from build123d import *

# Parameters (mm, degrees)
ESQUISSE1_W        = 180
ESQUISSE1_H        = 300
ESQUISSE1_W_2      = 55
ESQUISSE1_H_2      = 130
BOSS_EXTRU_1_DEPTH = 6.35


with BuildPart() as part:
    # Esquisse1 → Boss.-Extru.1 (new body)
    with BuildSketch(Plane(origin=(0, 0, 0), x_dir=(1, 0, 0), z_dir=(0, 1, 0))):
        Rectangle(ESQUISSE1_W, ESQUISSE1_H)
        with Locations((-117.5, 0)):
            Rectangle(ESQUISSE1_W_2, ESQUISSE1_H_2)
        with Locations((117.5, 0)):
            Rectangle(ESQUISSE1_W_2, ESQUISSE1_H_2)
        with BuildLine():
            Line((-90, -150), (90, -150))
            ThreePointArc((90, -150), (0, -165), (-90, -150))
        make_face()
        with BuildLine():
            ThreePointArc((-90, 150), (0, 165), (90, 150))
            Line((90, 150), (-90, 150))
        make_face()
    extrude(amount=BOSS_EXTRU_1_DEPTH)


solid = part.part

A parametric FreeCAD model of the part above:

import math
import FreeCAD as App
import Part
import Sketcher
from FreeCAD import Vector

doc = App.newDocument("Part")
params = doc.addObject("Spreadsheet::Sheet", "Params")
for row, (alias, value) in enumerate([
    ("sketch1_radius", "277.5 mm"),
    ("sketch1_width", "55 mm"),
    ("sketch1_height", "85 mm"),
    ("sketch1_height2", "130 mm"),
    ("pad1_length", "6.35 mm"),
], start=1):
    params.set(f"A{row}", alias)
    params.set(f"B{row}", "=" + value)
    params.setAlias(f"B{row}", alias)

body = doc.addObject("PartDesign::Body", "Body")

# Sketch on XZ plane
sketch1 = doc.addObject("Sketcher::SketchObject", "Sketch")
body.addObject(sketch1)
sketch1.AttachmentSupport = (doc.XZ_Plane, [""])
sketch1.MapMode = "FlatFace"
sketch1.addGeometry([
    Part.LineSegment(Vector(-90, 65, 0), Vector(-90, 150, 0)),  # 0
    Part.ArcOfCircle(Part.Circle(Vector(0, -112, 0), Vector(0, 0, 1), 278), math.radians(71), math.radians(109)),  # 1
    Part.LineSegment(Vector(90, 150, 0), Vector(90, 65, 0)),  # 2
    Part.LineSegment(Vector(90, 65, 0), Vector(145, 65, 0)),  # 3
    Part.LineSegment(Vector(145, 65, 0), Vector(145, -65, 0)),  # 4
    Part.LineSegment(Vector(145, -65, 0), Vector(90, -65, 0)),  # 5
    Part.LineSegment(Vector(90, -65, 0), Vector(90, -150, 0)),  # 6
    Part.ArcOfCircle(Part.Circle(Vector(0, 112, 0), Vector(0, 0, 1), 278), math.radians(-109), math.radians(-71)),  # 7
    Part.LineSegment(Vector(-90, -150, 0), Vector(-90, -65, 0)),  # 8
    Part.LineSegment(Vector(-90, -65, 0), Vector(-145, -65, 0)),  # 9
    Part.LineSegment(Vector(-145, -65, 0), Vector(-145, 65, 0)),  # 10
    Part.LineSegment(Vector(-145, 65, 0), Vector(-90, 65, 0)),  # 11
], False)
sketch1.addConstraint([
    Sketcher.Constraint("Coincident", 0, 2, 1, 2),
    Sketcher.Constraint("Coincident", 1, 1, 2, 1),
    Sketcher.Constraint("Coincident", 2, 2, 3, 1),
    Sketcher.Constraint("Coincident", 3, 2, 4, 1),
    Sketcher.Constraint("Coincident", 4, 2, 5, 1),
    Sketcher.Constraint("Coincident", 5, 2, 6, 1),
    Sketcher.Constraint("Coincident", 6, 2, 7, 2),
    Sketcher.Constraint("Coincident", 7, 1, 8, 1),
    Sketcher.Constraint("Coincident", 8, 2, 9, 1),
    Sketcher.Constraint("Coincident", 9, 2, 10, 1),
    Sketcher.Constraint("Coincident", 10, 2, 11, 1),
    Sketcher.Constraint("Coincident", 11, 2, 0, 1),
    Sketcher.Constraint("Vertical", 0),
    Sketcher.Constraint("Vertical", 2),
    Sketcher.Constraint("Horizontal", 3),
    Sketcher.Constraint("Vertical", 4),
    Sketcher.Constraint("Horizontal", 5),
    Sketcher.Constraint("Vertical", 6),
    Sketcher.Constraint("Vertical", 8),
    Sketcher.Constraint("Horizontal", 9),
    Sketcher.Constraint("Vertical", 10),
    Sketcher.Constraint("Horizontal", 11),
    Sketcher.Constraint("Equal", 1, 7),
    Sketcher.Constraint("Symmetric", 1, 3, 7, 3, -1, 1),
    Sketcher.Constraint("Symmetric", 2, 2, 8, 2, -1, 1),
    Sketcher.Constraint("Symmetric", 4, 2, 10, 2, -1, 1),
    Sketcher.Constraint("Symmetric", 0, 2, 1, 1, -2),
    Sketcher.Constraint("Symmetric", 5, 2, 8, 2, -2),
    Sketcher.Constraint("Radius", 1, 277.5),
    Sketcher.Constraint("DistanceX", 3, 1, 3, 2, 55.0),
    Sketcher.Constraint("DistanceY", 0, 1, 0, 2, 85.0),
    Sketcher.Constraint("DistanceY", 4, 2, 4, 1, 130.0),
    Sketcher.Constraint("DistanceX", 0, 2, -1, 1, 90.0),
])
sketch1.setExpression("Constraints[28]", "Params.sketch1_radius")
sketch1.setExpression("Constraints[29]", "Params.sketch1_width")
sketch1.setExpression("Constraints[30]", "Params.sketch1_height")
sketch1.setExpression("Constraints[31]", "Params.sketch1_height2")
pad1 = doc.addObject("PartDesign::Pad", "Pad")
body.addObject(pad1)
pad1.Profile = sketch1
pad1.setExpression("Length", "Params.pad1_length")
pad1.Reversed = True

doc.recompute()
